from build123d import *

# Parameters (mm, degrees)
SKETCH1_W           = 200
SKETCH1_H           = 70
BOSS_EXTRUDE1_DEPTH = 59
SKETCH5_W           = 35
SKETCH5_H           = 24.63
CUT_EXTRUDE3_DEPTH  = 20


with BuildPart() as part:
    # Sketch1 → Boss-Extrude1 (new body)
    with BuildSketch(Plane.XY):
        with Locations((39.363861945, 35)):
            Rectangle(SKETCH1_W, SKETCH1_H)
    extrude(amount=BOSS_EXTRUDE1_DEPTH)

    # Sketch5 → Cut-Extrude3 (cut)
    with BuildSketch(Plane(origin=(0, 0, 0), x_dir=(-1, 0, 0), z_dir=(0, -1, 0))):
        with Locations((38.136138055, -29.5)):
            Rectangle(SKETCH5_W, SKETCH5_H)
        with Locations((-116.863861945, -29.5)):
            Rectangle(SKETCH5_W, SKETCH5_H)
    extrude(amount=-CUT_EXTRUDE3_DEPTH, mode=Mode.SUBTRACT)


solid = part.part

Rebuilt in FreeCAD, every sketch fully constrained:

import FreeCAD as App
import Part
import Sketcher

doc = App.newDocument("Part")
body = doc.addObject("PartDesign::Body", "Body")

# Sketch on XY plane
sketch1 = body.newObject("Sketcher::SketchObject", "Sketch")
sketch1.AttachmentSupport = (doc.getObject("XY_Plane"), [""])
sketch1.MapMode = "FlatFace"
sketch1.addGeometry([
    Part.LineSegment(App.Vector(-61, 70, 0), App.Vector(-61, 0, 0)),
    Part.LineSegment(App.Vector(-61, 0, 0), App.Vector(139, 0, 0)),
    Part.LineSegment(App.Vector(139, 0, 0), App.Vector(139, 70, 0)),
    Part.LineSegment(App.Vector(139, 70, 0), App.Vector(-61, 70, 0)),
], False)
sketch1.addConstraint([
    Sketcher.Constraint("Coincident", 0, 2, 1, 1),
    Sketcher.Constraint("Coincident", 1, 2, 2, 1),
    Sketcher.Constraint("Coincident", 2, 2, 3, 1),
    Sketcher.Constraint("Coincident", 3, 2, 0, 1),
    Sketcher.Constraint("Vertical", 0),
    Sketcher.Constraint("Horizontal", 1),
    Sketcher.Constraint("Vertical", 2),
    Sketcher.Constraint("Horizontal", 3),
    Sketcher.Constraint("PointOnObject", 0, 2, -1),
    Sketcher.Constraint("DistanceX", 1, 1, 1, 2, 200.0),
    Sketcher.Constraint("DistanceY", 0, 2, 0, 1, 70.0),
    Sketcher.Constraint("DistanceX", 0, 2, -1, 1, 60.636138),
])
pad1 = body.newObject("PartDesign::Pad", "Pad")
pad1.Profile = sketch1
pad1.Length = 59

# Sketch on XZ plane
sketch2 = body.newObject("Sketcher::SketchObject", "Sketch001")
sketch2.AttachmentSupport = (doc.getObject("XZ_Plane"), [""])
sketch2.MapMode = "FlatFace"
sketch2.addGeometry([
    Part.LineSegment(App.Vector(-21, 17, 0), App.Vector(-21, 42, 0)),  # 0
    Part.LineSegment(App.Vector(-21, 42, 0), App.Vector(-56, 42, 0)),  # 1
    Part.LineSegment(App.Vector(-56, 42, 0), App.Vector(-56, 17, 0)),  # 2
    Part.LineSegment(App.Vector(-56, 17, 0), App.Vector(-21, 17, 0)),  # 3
    Part.LineSegment(App.Vector(134, 17, 0), App.Vector(134, 42, 0)),  # 4
    Part.LineSegment(App.Vector(134, 42, 0), App.Vector(99, 42, 0)),  # 5
    Part.LineSegment(App.Vector(99, 42, 0), App.Vector(99, 17, 0)),  # 6
    Part.LineSegment(App.Vector(99, 17, 0), App.Vector(134, 17, 0)),  # 7
], False)
sketch2.addConstraint([
    Sketcher.Constraint("Coincident", 0, 2, 1, 1),
    Sketcher.Constraint("Coincident", 1, 2, 2, 1),
    Sketcher.Constraint("Coincident", 2, 2, 3, 1),
    Sketcher.Constraint("Coincident", 3, 2, 0, 1),
    Sketcher.Constraint("Coincident", 4, 2, 5, 1),
    Sketcher.Constraint("Coincident", 5, 2, 6, 1),
    Sketcher.Constraint("Coincident", 6, 2, 7, 1),
    Sketcher.Constraint("Coincident", 7, 2, 4, 1),
    Sketcher.Constraint("Vertical", 0),
    Sketcher.Constraint("Horizontal", 1),
    Sketcher.Constraint("Vertical", 2),
    Sketcher.Constraint("Horizontal", 3),
    Sketcher.Constraint("Vertical", 4),
    Sketcher.Constraint("Horizontal", 5),
    Sketcher.Constraint("Vertical", 6),
    Sketcher.Constraint("Horizontal", 7),
    Sketcher.Constraint("Horizontal", 1, 2, 4, 2),
    Sketcher.Constraint("Horizontal", 3, 2, 6, 2),
    Sketcher.Constraint("Equal", 3, 5),
    Sketcher.Constraint("DistanceX", 1, 2, 1, 1, 35.0),
    Sketcher.Constraint("DistanceX", 0, 2, 4, 2, 155.0),
    Sketcher.Constraint("DistanceY", 0, 1, 0, 2, 24.63),
    Sketcher.Constraint("DistanceY", -1, 1, 0, 2, 41.815),
    Sketcher.Constraint("DistanceX", 0, 2, -1, 1, 20.636138),
])
pocket1 = body.newObject("PartDesign::Pocket", "Pocket")
pocket1.Profile = sketch2
pocket1.Length = 20

doc.recompute()
